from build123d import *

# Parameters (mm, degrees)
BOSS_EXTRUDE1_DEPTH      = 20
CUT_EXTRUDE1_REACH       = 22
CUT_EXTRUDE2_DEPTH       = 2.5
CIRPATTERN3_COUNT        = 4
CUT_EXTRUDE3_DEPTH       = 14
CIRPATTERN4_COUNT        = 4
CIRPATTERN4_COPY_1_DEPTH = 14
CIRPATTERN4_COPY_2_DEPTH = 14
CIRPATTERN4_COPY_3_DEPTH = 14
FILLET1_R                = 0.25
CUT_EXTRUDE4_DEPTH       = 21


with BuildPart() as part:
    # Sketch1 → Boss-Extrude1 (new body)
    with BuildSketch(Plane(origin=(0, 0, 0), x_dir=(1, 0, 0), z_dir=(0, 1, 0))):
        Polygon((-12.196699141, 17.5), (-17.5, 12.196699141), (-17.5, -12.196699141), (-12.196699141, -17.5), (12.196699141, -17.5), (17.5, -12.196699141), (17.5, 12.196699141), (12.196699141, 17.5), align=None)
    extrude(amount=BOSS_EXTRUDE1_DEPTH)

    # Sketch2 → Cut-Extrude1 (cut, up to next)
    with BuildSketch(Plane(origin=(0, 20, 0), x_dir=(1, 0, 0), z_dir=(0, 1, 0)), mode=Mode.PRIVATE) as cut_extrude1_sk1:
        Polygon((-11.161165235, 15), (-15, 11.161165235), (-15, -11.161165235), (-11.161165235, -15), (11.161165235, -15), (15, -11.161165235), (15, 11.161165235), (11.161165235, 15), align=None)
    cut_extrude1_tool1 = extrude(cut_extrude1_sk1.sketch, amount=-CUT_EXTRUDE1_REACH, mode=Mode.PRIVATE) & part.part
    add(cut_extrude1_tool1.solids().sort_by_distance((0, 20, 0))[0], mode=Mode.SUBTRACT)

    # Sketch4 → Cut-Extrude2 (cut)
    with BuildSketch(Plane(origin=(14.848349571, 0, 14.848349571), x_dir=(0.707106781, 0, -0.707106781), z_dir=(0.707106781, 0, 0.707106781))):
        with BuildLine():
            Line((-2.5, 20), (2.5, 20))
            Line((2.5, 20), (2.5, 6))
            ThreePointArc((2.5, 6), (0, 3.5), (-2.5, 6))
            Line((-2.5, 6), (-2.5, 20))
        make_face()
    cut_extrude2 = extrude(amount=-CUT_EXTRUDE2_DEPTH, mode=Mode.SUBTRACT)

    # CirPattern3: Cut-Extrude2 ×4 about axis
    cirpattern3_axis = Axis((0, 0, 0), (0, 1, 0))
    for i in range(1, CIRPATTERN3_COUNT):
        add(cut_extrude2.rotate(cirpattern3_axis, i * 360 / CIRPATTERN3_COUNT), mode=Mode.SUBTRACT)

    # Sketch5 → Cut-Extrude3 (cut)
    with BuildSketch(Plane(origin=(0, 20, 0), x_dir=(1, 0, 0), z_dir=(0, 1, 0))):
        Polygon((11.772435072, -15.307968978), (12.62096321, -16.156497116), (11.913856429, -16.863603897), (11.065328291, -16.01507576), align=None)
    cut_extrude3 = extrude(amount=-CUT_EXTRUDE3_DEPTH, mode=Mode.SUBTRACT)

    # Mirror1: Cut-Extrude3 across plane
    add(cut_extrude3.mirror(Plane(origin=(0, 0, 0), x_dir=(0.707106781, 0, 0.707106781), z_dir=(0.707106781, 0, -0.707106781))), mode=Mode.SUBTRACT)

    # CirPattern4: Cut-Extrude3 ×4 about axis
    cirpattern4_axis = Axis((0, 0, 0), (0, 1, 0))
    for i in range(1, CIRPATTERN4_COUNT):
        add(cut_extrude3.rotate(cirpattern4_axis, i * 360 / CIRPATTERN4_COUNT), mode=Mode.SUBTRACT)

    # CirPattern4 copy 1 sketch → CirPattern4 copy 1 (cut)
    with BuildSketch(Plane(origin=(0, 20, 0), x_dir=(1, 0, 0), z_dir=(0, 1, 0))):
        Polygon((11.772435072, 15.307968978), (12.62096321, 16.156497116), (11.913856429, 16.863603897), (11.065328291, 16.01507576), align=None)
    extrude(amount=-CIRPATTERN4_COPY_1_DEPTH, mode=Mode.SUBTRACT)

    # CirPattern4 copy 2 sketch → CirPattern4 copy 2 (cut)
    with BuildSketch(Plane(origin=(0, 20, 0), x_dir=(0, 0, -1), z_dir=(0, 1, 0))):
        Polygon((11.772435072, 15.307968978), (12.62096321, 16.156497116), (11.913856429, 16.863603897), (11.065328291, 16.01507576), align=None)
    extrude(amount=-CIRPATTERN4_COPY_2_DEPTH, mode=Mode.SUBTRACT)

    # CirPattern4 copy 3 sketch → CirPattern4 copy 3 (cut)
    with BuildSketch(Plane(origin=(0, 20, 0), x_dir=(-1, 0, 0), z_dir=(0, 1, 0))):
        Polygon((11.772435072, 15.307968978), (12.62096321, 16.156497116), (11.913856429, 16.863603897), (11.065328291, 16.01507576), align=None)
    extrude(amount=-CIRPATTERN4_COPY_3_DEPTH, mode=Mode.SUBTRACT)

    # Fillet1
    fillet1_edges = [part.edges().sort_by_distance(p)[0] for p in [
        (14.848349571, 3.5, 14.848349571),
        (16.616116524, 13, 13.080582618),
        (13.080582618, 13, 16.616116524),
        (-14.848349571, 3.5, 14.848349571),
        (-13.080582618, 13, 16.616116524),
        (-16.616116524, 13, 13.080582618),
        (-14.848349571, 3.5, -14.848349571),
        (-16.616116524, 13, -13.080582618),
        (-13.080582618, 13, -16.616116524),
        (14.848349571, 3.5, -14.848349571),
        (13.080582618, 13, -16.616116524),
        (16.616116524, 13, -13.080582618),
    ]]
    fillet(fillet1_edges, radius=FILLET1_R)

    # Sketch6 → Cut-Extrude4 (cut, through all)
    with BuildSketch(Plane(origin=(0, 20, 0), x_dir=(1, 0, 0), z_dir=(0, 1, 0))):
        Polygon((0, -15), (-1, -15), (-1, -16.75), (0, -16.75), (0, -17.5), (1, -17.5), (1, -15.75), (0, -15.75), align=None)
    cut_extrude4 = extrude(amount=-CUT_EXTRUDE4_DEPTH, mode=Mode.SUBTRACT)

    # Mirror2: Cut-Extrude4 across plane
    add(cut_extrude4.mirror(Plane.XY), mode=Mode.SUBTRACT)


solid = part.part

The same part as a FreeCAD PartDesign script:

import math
import FreeCAD as App
import Part
import Sketcher
from FreeCAD import Vector
Q = App.Units.Quantity


def edges_at(feature, points):
    """Names of the edges that pass closest to the given points."""
    edges = feature.Shape.Edges
    near = lambda p: min(range(len(edges)), key=lambda i: edges[i].distToShape(Part.Vertex(*p))[0])
    return sorted({f"Edge{near(p) + 1}" for p in points})

doc = App.newDocument("Part")
body = doc.addObject("PartDesign::Body", "Body")
body.AllowCompound = True

sketch1 = body.newObject("Sketcher::SketchObject", "Sketch")
sketch1.AttachmentSupport = (doc.getObject("XZ_Plane"), [""])
sketch1.MapMode = "FlatFace"
sketch1.addGeometry([
    Part.LineSegment(Vector(-12.196699, -17.5, 0), Vector(-17.5, -12.196699, 0)),
    Part.LineSegment(Vector(-17.5, -12.196699, 0), Vector(-17.5, 12.196699, 0)),
    Part.LineSegment(Vector(-17.5, 12.196699, 0), Vector(-12.196699, 17.5, 0)),
    Part.LineSegment(Vector(-12.196699, 17.5, 0), Vector(12.196699, 17.5, 0)),
    Part.LineSegment(Vector(12.196699, 17.5, 0), Vector(17.5, 12.196699, 0)),
    Part.LineSegment(Vector(17.5, 12.196699, 0), Vector(17.5, -12.196699, 0)),
    Part.LineSegment(Vector(17.5, -12.196699, 0), Vector(12.196699, -17.5, 0)),
    Part.LineSegment(Vector(12.196699, -17.5, 0), Vector(-12.196699, -17.5, 0)),
], False)
sketch1.addConstraint([
    Sketcher.Constraint("Coincident", 0, 2, 1, 1),
    Sketcher.Constraint("Coincident", 1, 2, 2, 1),
    Sketcher.Constraint("Coincident", 2, 2, 3, 1),
    Sketcher.Constraint("Coincident", 3, 2, 4, 1),
    Sketcher.Constraint("Coincident", 4, 2, 5, 1),
    Sketcher.Constraint("Coincident", 5, 2, 6, 1),
    Sketcher.Constraint("Coincident", 6, 2, 7, 1),
    Sketcher.Constraint("Coincident", 7, 2, 0, 1),
    Sketcher.Constraint("Vertical", 1),
    Sketcher.Constraint("Horizontal", 3),
    Sketcher.Constraint("Vertical", 5),
    Sketcher.Constraint("Horizontal", 7),
    Sketcher.Constraint("Symmetric", 0, 2, 4, 2, -1, 1),
    Sketcher.Constraint("Symmetric", 2, 2, 6, 2, -1, 1),
    Sketcher.Constraint("Perpendicular", 0, 2),
    Sketcher.Constraint("Perpendicular", 2, 4),
    Sketcher.Constraint("Perpendicular", 4, 6),
    Sketcher.Constraint("Horizontal", 1, 2, 4, 2),
    Sketcher.Constraint("Vertical", 3, 2, 6, 2),
    Sketcher.Constraint("Equal", 7, 1),
    Sketcher.Constraint("DistanceX", 1, 2, 4, 2, 35.0),
    Sketcher.Constraint("Distance", 0, 7.5),
])
pad1 = body.newObject("PartDesign::Pad", "Pad")
pad1.Profile = sketch1
pad1.Length = 20
pad1.Reversed = True

sketch2 = body.newObject("Sketcher::SketchObject", "Sketch001")
sketch2.AttachmentSupport = (doc.getObject("XZ_Plane"), [""])
sketch2.MapMode = "FlatFace"
sketch2.AttachmentOffset = App.Placement(Vector(0, 0, -20), App.Rotation())
sketch2.addGeometry([
    Part.LineSegment(Vector(-11.161165, -15, 0), Vector(-15, -11.161165, 0)),
    Part.LineSegment(Vector(-15, -11.161165, 0), Vector(-15, 11.161165, 0)),
    Part.LineSegment(Vector(-15, 11.161165, 0), Vector(-11.161165, 15, 0)),
    Part.LineSegment(Vector(-11.161165, 15, 0), Vector(11.161165, 15, 0)),
    Part.LineSegment(Vector(11.161165, 15, 0), Vector(15, 11.161165, 0)),
    Part.LineSegment(Vector(15, 11.161165, 0), Vector(15, -11.161165, 0)),
    Part.LineSegment(Vector(15, -11.161165, 0), Vector(11.161165, -15, 0)),
    Part.LineSegment(Vector(11.161165, -15, 0), Vector(-11.161165, -15, 0)),
], False)
sketch2.addConstraint([
    Sketcher.Constraint("Coincident", 0, 2, 1, 1),
    Sketcher.Constraint("Coincident", 1, 2, 2, 1),
    Sketcher.Constraint("Coincident", 2, 2, 3, 1),
    Sketcher.Constraint("Coincident", 3, 2, 4, 1),
    Sketcher.Constraint("Coincident", 4, 2, 5, 1),
    Sketcher.Constraint("Coincident", 5, 2, 6, 1),
    Sketcher.Constraint("Coincident", 6, 2, 7, 1),
    Sketcher.Constraint("Coincident", 7, 2, 0, 1),
    Sketcher.Constraint("Vertical", 1),
    Sketcher.Constraint("Horizontal", 3),
    Sketcher.Constraint("Vertical", 5),
    Sketcher.Constraint("Horizontal", 7),
    Sketcher.Constraint("Symmetric", 0, 2, 4, 2, -1, 1),
    Sketcher.Constraint("Symmetric", 2, 2, 6, 2, -1, 1),
    Sketcher.Constraint("Perpendicular", 0, 2),
    Sketcher.Constraint("Perpendicular", 2, 4),
    Sketcher.Constraint("Perpendicular", 4, 6),
    Sketcher.Constraint("Horizontal", 1, 2, 4, 2),
    Sketcher.Constraint("Vertical", 3, 2, 6, 2),
    Sketcher.Constraint("Equal", 7, 1),
    Sketcher.Constraint("DistanceX", 0, 2, -1, 1, 15.0),
    Sketcher.Constraint("DistanceX", 3, 1, 3, 2, 22.32233),
])
pocket1 = body.newObject("PartDesign::Pocket", "Pocket")
pocket1.Profile = sketch2
pocket1.Type = "UpToFirst"
pocket1.Reversed = True

sketch3 = body.newObject("Sketcher::SketchObject", "Sketch002")
sketch3.Placement = App.Placement(Vector(14.84835, 0, 14.84835), App.Rotation(Vector(0.707106781, 0, -0.707106781), Vector(0, 0.999999999, 0), Vector(0.707106781, 0, 0.707106781), "ZXY"))
sketch3.addGeometry([
    Part.LineSegment(Vector(2.5, 20, 0), Vector(-2.5, 20, 0)),
    Part.LineSegment(Vector(-2.5, 20, 0), Vector(-2.5, 6, 0)),
    Part.ArcOfCircle(Part.Circle(Vector(0, 6, 0), Vector(0, 0, 1), 2.5), math.radians(180), math.radians(360)),
    Part.LineSegment(Vector(2.5, 6, 0), Vector(2.5, 20, 0)),
], False)
sketch3.addConstraint([
    Sketcher.Constraint("Coincident", 0, 2, 1, 1),
    Sketcher.Constraint("Tangent", 1, 2, 2, 1),
    Sketcher.Constraint("Tangent", 2, 2, 3, 1),
    Sketcher.Constraint("Coincident", 3, 2, 0, 1),
    Sketcher.Constraint("Horizontal", 0),
    Sketcher.Constraint("Vertical", 1),
    Sketcher.Constraint("Vertical", 3),
    Sketcher.Constraint("PointOnObject", 2, 3, -2),
    Sketcher.Constraint("Radius", 2, 2.5),
    Sketcher.Constraint("DistanceY", 1, 2, 1, 1, 14.0),
    Sketcher.Constraint("DistanceY", -1, 1, 2, 3, 6.0),
])
pocket2 = body.newObject("PartDesign::Pocket", "Pocket001")
pocket2.Profile = sketch3
pocket2.Length = 2.5
doc.recompute()

polarpattern = body.newObject("PartDesign::PolarPattern", "PolarPattern")
polarpattern.Originals = [pocket2]
polarpattern.Axis = (doc.getObject("Y_Axis"), [""])
polarpattern.Angle = 360
polarpattern.Occurrences = 4
body.Tip = polarpattern

sketch4 = body.newObject("Sketcher::SketchObject", "Sketch003")
sketch4.AttachmentSupport = (doc.getObject("XZ_Plane"), [""])
sketch4.MapMode = "FlatFace"
sketch4.AttachmentOffset = App.Placement(Vector(0, 0, -20), App.Rotation())
sketch4.addGeometry([
    Part.LineSegment(Vector(12.620963, 16.156497, 0), Vector(11.772435, 15.307969, 0)),
    Part.LineSegment(Vector(11.772435, 15.307969, 0), Vector(11.065328, 16.015076, 0)),
    Part.LineSegment(Vector(11.065328, 16.015076, 0), Vector(11.913856, 16.863604, 0)),
    Part.LineSegment(Vector(11.913856, 16.863604, 0), Vector(12.620963, 16.156497, 0)),
], False)
sketch4.addConstraint([
    Sketcher.Constraint("Coincident", 0, 2, 1, 1),
    Sketcher.Constraint("Coincident", 1, 2, 2, 1),
    Sketcher.Constraint("Coincident", 2, 2, 3, 1),
    Sketcher.Constraint("Coincident", 3, 2, 0, 1),
    Sketcher.Constraint("Perpendicular", 0, 1),
    Sketcher.Constraint("Perpendicular", 1, 2),
    Sketcher.Constraint("Perpendicular", 2, 3),
    Sketcher.Constraint("Angle", 0, Q("-135 deg")),
    Sketcher.Constraint("Distance", 1, 1.0),
    Sketcher.Constraint("Distance", 0, 1.2),
    Sketcher.Constraint("DistanceY", -1, 1, 0, 2, 15.307969),
    Sketcher.Constraint("DistanceX", -1, 1, 1, 2, 11.065328),
])
pocket3 = body.newObject("PartDesign::Pocket", "Pocket002")
pocket3.Profile = sketch4
pocket3.Length = 14
pocket3.Reversed = True
doc.recompute()

datumplane = body.newObject("PartDesign::Plane", "DatumPlane")
datumplane.Placement = App.Placement(Vector(0, 0, 0), App.Rotation(Vector(0.707106781, 0, 0.707106781), Vector(0, -1, 0), Vector(0.707106781, 0, -0.707106781), "ZXY"))
mirrored = body.newObject("PartDesign::Mirrored", "Mirrored")
mirrored.Originals = [pocket3]
mirrored.MirrorPlane = (datumplane, [""])
body.Tip = mirrored
doc.recompute()

polarpattern2 = body.newObject("PartDesign::PolarPattern", "PolarPattern001")
polarpattern2.Originals = [pocket3]
polarpattern2.Axis = (doc.getObject("Y_Axis"), [""])
polarpattern2.Angle = 360
polarpattern2.Occurrences = 4
body.Tip = polarpattern2

sketch5 = body.newObject("Sketcher::SketchObject", "Sketch004")
sketch5.AttachmentSupport = (doc.getObject("XZ_Plane"), [""])
sketch5.MapMode = "FlatFace"
sketch5.AttachmentOffset = App.Placement(Vector(0, 0, -20), App.Rotation())
sketch5.addGeometry([
    Part.LineSegment(Vector(11.772435, -15.307969, 0), Vector(12.620963, -16.156497, 0)),
    Part.LineSegment(Vector(12.620963, -16.156497, 0), Vector(11.913856, -16.863604, 0)),
    Part.LineSegment(Vector(11.913856, -16.863604, 0), Vector(11.065328, -16.015076, 0)),
    Part.LineSegment(Vector(11.065328, -16.015076, 0), Vector(11.772435, -15.307969, 0)),
], False)
sketch5.addConstraint([
    Sketcher.Constraint("Coincident", 0, 2, 1, 1),
    Sketcher.Constraint("Coincident", 1, 2, 2, 1),
    Sketcher.Constraint("Coincident", 2, 2, 3, 1),
    Sketcher.Constraint("Coincident", 3, 2, 0, 1),
    Sketcher.Constraint("Perpendicular", 0, 1),
    Sketcher.Constraint("Perpendicular", 1, 2),
    Sketcher.Constraint("Perpendicular", 2, 3),
    Sketcher.Constraint("Angle", 0, Q("-45 deg")),
    Sketcher.Constraint("Distance", 1, 1.0),
    Sketcher.Constraint("Distance", 0, 1.2),
    Sketcher.Constraint("DistanceX", -1, 1, 2, 2, 11.065328),
    Sketcher.Constraint("DistanceY", 3, 2, -1, 1, 15.307969),
])
pocket4 = body.newObject("PartDesign::Pocket", "Pocket003")
pocket4.Profile = sketch5
pocket4.Length = 14
pocket4.Reversed = True

sketch6 = body.newObject("Sketcher::SketchObject", "Sketch005")
sketch6.AttachmentSupport = (doc.getObject("XZ_Plane"), [""])
sketch6.MapMode = "FlatFace"
sketch6.AttachmentOffset = App.Placement(Vector(0, 0, -20), App.Rotation())
sketch6.addGeometry([
    Part.LineSegment(Vector(-15.307969, -11.772435, 0), Vector(-16.156497, -12.620963, 0)),
    Part.LineSegment(Vector(-16.156497, -12.620963, 0), Vector(-16.863604, -11.913856, 0)),
    Part.LineSegment(Vector(-16.863604, -11.913856, 0), Vector(-16.015076, -11.065328, 0)),
    Part.LineSegment(Vector(-16.015076, -11.065328, 0), Vector(-15.307969, -11.772435, 0)),
], False)
sketch6.addConstraint([
    Sketcher.Constraint("Coincident", 0, 2, 1, 1),
    Sketcher.Constraint("Coincident", 1, 2, 2, 1),
    Sketcher.Constraint("Coincident", 2, 2, 3, 1),
    Sketcher.Constraint("Coincident", 3, 2, 0, 1),
    Sketcher.Constraint("Perpendicular", 0, 1),
    Sketcher.Constraint("Perpendicular", 1, 2),
    Sketcher.Constraint("Perpendicular", 2, 3),
    Sketcher.Constraint("Angle", 0, Q("-135 deg")),
    Sketcher.Constraint("Distance", 1, 1.0),
    Sketcher.Constraint("Distance", 0, 1.2),
    Sketcher.Constraint("DistanceY", 2, 2, -1, 1, 11.065328),
    Sketcher.Constraint("DistanceX", 3, 2, -1, 1, 15.307969),
])
pocket5 = body.newObject("PartDesign::Pocket", "Pocket004")
pocket5.Profile = sketch6
pocket5.Length = 14
pocket5.Reversed = True

sketch7 = body.newObject("Sketcher::SketchObject", "Sketch006")
sketch7.AttachmentSupport = (doc.getObject("XZ_Plane"), [""])
sketch7.MapMode = "FlatFace"
sketch7.AttachmentOffset = App.Placement(Vector(0, 0, -20), App.Rotation())
sketch7.addGeometry([
    Part.LineSegment(Vector(-11.772435, 15.307969, 0), Vector(-12.620963, 16.156497, 0)),
    Part.LineSegment(Vector(-12.620963, 16.156497, 0), Vector(-11.913856, 16.863604, 0)),
    Part.LineSegment(Vector(-11.913856, 16.863604, 0), Vector(-11.065328, 16.015076, 0)),
    Part.LineSegment(Vector(-11.065328, 16.015076, 0), Vector(-11.772435, 15.307969, 0)),
], False)
sketch7.addConstraint([
    Sketcher.Constraint("Coincident", 0, 2, 1, 1),
    Sketcher.Constraint("Coincident", 1, 2, 2, 1),
    Sketcher.Constraint("Coincident", 2, 2, 3, 1),
    Sketcher.Constraint("Coincident", 3, 2, 0, 1),
    Sketcher.Constraint("Perpendicular", 0, 1),
    Sketcher.Constraint("Perpendicular", 1, 2),
    Sketcher.Constraint("Perpendicular", 2, 3),
    Sketcher.Constraint("Angle", 0, Q("135 deg")),
    Sketcher.Constraint("Distance", 1, 1.0),
    Sketcher.Constraint("Distance", 0, 1.2),
    Sketcher.Constraint("DistanceX", 2, 2, -1, 1, 11.065328),
    Sketcher.Constraint("DistanceY", -1, 1, 3, 2, 15.307969),
])
pocket6 = body.newObject("PartDesign::Pocket", "Pocket005")
pocket6.Profile = sketch7
pocket6.Length = 14
pocket6.Reversed = True
doc.recompute()

fillet = body.newObject("PartDesign::Fillet", "Fillet")
fillet.Base = (pocket6, edges_at(pocket6, [
    (14.848, 3.5, 14.848),
    (16.616, 13, 13.081),
    (13.081, 13, 16.616),
    (-14.848, 3.5, 14.848),
    (-13.081, 13, 16.616),
    (-16.616, 13, 13.081),
    (-14.848, 3.5, -14.848),
    (-16.616, 13, -13.081),
    (-13.081, 13, -16.616),
    (14.848, 3.5, -14.848),
    (13.081, 13, -16.616),
    (16.616, 13, -13.081),
]))
fillet.Radius = 0.25

sketch8 = body.newObject("Sketcher::SketchObject", "Sketch007")
sketch8.AttachmentSupport = (doc.getObject("XZ_Plane"), [""])
sketch8.MapMode = "FlatFace"
sketch8.AttachmentOffset = App.Placement(Vector(0, 0, -20), App.Rotation())
sketch8.addGeometry([
    Part.LineSegment(Vector(0, 15, 0), Vector(-1, 15, 0)),
    Part.LineSegment(Vector(-1, 15, 0), Vector(-1, 16.75, 0)),
    Part.LineSegment(Vector(-1, 16.75, 0), Vector(0, 16.75, 0)),
    Part.LineSegment(Vector(0, 16.75, 0), Vector(0, 17.5, 0)),
    Part.LineSegment(Vector(0, 17.5, 0), Vector(1, 17.5, 0)),
    Part.LineSegment(Vector(1, 17.5, 0), Vector(1, 15.75, 0)),
    Part.LineSegment(Vector(1, 15.75, 0), Vector(0, 15.75, 0)),
    Part.LineSegment(Vector(0, 15.75, 0), Vector(0, 15, 0)),
], False)
sketch8.addConstraint([
    Sketcher.Constraint("Coincident", 0, 2, 1, 1),
    Sketcher.Constraint("Coincident", 1, 2, 2, 1),
    Sketcher.Constraint("Coincident", 2, 2, 3, 1),
    Sketcher.Constraint("Coincident", 3, 2, 4, 1),
    Sketcher.Constraint("Coincident", 4, 2, 5, 1),
    Sketcher.Constraint("Coincident", 5, 2, 6, 1),
    Sketcher.Constraint("Coincident", 6, 2, 7, 1),
    Sketcher.Constraint("Coincident", 7, 2, 0, 1),
    Sketcher.Constraint("Horizontal", 0),
    Sketcher.Constraint("Vertical", 1),
    Sketcher.Constraint("Horizontal", 2),
    Sketcher.Constraint("Vertical", 3),
    Sketcher.Constraint("Horizontal", 4),
    Sketcher.Constraint("Vertical", 5),
    Sketcher.Constraint("Horizontal", 6),
    Sketcher.Constraint("Vertical", 7),
    Sketcher.Constraint("PointOnObject", 2, 2, -2),
    Sketcher.Constraint("PointOnObject", 6, 2, -2),
    Sketcher.Constraint("Equal", 2, 4),
    Sketcher.Constraint("Equal", 1, 5),
    Sketcher.Constraint("DistanceX", 0, 2, 0, 1, 1.0),
    Sketcher.Constraint("DistanceY", -1, 1, 0, 2, 15.0),
    Sketcher.Constraint("DistanceY", 5, 2, 2, 2, 1.0),
    Sketcher.Constraint("DistanceY", 1, 1, 1, 2, 1.75),
])
pocket7 = body.newObject("PartDesign::Pocket", "Pocket006")
pocket7.Profile = sketch8
pocket7.Type = "ThroughAll"
pocket7.Reversed = True
doc.recompute()

mirrored2 = body.newObject("PartDesign::Mirrored", "Mirrored001")
mirrored2.Originals = [pocket7]
mirrored2.MirrorPlane = (doc.getObject("XY_Plane"), [""])
body.Tip = mirrored2

doc.recompute()
